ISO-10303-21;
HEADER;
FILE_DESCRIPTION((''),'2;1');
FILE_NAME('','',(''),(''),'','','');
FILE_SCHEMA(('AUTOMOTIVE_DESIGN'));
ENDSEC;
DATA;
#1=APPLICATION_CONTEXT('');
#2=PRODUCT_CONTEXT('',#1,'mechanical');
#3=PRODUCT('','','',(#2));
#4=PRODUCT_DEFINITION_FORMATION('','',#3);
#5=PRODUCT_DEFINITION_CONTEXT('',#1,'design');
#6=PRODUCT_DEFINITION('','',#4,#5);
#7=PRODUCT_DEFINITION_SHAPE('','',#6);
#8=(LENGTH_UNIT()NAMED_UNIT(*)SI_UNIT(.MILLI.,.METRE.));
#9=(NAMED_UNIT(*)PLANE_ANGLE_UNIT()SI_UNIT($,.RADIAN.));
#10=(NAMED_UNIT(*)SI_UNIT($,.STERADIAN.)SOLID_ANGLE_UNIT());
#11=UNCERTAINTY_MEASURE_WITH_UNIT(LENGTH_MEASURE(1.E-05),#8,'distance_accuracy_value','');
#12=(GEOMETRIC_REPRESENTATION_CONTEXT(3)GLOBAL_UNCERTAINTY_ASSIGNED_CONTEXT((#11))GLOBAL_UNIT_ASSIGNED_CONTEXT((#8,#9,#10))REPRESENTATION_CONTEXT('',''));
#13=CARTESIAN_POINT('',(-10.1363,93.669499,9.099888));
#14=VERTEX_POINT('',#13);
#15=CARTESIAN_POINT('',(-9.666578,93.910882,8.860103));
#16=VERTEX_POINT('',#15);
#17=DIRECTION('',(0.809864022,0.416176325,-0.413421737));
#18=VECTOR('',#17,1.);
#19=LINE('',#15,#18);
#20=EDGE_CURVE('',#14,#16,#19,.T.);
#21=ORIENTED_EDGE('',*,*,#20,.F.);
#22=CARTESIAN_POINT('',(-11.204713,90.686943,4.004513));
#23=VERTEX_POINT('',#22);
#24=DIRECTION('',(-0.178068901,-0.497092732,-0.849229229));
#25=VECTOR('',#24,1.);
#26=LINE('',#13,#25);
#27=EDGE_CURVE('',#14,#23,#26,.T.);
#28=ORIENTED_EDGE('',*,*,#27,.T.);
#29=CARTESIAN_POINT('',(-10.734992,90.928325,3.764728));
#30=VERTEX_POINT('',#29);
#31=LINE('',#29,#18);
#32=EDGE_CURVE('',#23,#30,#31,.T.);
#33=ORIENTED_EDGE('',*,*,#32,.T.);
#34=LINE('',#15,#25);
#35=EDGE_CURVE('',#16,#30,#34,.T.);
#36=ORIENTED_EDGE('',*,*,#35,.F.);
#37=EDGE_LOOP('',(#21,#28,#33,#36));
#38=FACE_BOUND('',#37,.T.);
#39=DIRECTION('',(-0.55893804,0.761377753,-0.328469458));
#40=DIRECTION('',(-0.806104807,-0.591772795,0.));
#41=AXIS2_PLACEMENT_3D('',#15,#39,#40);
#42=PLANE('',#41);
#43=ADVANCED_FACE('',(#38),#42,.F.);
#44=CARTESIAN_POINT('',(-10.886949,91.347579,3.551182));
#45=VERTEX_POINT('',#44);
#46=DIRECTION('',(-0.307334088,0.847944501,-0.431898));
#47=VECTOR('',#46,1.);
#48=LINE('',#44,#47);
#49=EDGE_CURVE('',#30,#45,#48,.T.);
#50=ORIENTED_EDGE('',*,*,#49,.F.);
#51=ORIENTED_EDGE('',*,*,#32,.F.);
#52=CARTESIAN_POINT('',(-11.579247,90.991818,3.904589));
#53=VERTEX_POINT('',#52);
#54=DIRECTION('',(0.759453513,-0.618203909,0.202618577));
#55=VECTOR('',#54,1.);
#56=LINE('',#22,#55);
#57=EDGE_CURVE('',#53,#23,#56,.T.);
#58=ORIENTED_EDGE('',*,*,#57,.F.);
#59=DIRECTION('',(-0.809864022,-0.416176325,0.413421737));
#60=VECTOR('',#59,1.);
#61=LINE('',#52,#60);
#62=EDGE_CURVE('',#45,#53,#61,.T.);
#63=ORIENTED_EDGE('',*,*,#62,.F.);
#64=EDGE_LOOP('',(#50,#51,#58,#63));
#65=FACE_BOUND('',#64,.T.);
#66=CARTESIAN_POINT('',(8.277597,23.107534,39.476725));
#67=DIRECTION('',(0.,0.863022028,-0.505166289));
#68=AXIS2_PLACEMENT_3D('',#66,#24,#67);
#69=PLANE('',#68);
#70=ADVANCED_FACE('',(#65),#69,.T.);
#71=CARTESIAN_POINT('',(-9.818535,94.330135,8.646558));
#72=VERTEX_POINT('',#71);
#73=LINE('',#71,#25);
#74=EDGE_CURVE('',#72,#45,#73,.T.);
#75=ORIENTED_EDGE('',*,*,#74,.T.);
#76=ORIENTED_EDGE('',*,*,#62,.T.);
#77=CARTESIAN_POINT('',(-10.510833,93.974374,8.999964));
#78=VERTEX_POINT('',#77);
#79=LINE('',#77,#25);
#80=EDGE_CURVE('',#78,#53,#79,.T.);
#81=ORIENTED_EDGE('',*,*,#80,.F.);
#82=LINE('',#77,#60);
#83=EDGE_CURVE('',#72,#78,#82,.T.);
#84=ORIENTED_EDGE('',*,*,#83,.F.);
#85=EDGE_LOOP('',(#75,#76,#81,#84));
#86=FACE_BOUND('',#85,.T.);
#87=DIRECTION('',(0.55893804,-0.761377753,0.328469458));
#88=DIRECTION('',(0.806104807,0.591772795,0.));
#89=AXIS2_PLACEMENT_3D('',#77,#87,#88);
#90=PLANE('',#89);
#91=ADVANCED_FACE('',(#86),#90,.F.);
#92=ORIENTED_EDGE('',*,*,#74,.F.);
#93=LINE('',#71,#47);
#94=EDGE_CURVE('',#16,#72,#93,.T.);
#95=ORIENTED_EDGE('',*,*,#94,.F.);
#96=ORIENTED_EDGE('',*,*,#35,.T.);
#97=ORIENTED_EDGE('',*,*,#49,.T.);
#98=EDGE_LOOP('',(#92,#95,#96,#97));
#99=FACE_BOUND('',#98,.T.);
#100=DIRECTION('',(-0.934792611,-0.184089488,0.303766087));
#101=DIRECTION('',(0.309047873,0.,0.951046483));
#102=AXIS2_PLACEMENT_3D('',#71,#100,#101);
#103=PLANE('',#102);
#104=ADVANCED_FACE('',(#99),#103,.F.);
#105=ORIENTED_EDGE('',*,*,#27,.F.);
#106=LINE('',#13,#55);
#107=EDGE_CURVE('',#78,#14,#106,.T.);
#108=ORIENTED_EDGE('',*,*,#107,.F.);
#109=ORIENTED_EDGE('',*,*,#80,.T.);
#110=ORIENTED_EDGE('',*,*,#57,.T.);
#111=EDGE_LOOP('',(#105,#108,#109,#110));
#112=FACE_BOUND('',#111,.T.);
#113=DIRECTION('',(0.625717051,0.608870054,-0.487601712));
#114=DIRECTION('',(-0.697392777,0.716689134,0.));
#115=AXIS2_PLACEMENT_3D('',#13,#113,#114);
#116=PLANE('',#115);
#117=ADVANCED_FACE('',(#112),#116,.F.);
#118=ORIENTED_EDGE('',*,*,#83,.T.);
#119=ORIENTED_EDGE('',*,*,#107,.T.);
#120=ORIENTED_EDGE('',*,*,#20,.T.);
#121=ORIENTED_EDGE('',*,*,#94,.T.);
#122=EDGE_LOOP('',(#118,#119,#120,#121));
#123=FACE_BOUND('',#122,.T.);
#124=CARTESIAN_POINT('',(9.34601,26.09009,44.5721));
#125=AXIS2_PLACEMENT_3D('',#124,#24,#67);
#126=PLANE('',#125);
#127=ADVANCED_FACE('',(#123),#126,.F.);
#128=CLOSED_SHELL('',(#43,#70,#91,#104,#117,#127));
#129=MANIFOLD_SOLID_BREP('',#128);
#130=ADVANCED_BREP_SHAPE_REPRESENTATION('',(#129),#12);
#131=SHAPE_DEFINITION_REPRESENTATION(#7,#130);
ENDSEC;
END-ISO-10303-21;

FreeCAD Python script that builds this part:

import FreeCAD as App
import Part
import Sketcher
from FreeCAD import Vector
Q = App.Units.Quantity

doc = App.newDocument("Part")
body = doc.addObject("PartDesign::Body", "Body")

# Sketch on an angled plane
sketch1 = body.newObject("Sketcher::SketchObject", "Sketch")
sketch1.Placement = App.Placement(Vector(8.277597, 23.107534, 39.476725), App.Rotation(Vector(0.984018021, -0.089954406, -0.153677384), Vector(0, 0.863022028, -0.505166289), Vector(0.178068901, 0.497092732, 0.849229229), "ZXY"))
sketch1.addGeometry(Part.LineSegment(Vector(-19.798733, 76.241885, 0), Vector(-19.321382, 76.571334, 0)), False)
sketch1.addGeometry(Part.LineSegment(Vector(-19.321382, 76.571334, 0), Vector(-19.475807, 77.041035, 0)), False)
sketch1.addGeometry(Part.LineSegment(Vector(-19.475807, 77.041035, 0), Vector(-20.179349, 76.555476, 0)), False)
sketch1.addGeometry(Part.LineSegment(Vector(-20.179349, 76.555476, 0), Vector(-19.798733, 76.241885, 0)), False)
sketch1.addConstraint(Sketcher.Constraint("Coincident", 0, 2, 1, 1))
sketch1.addConstraint(Sketcher.Constraint("Coincident", 1, 2, 2, 1))
sketch1.addConstraint(Sketcher.Constraint("Coincident", 2, 2, 3, 1))
sketch1.addConstraint(Sketcher.Constraint("Coincident", 3, 2, 0, 1))
sketch1.addConstraint(Sketcher.Constraint("Parallel", 0, 2))
sketch1.addConstraint(Sketcher.Constraint("Distance", 0, Q("0.58 mm")))
sketch1.addConstraint(Sketcher.Constraint("DistanceY", 0, 2, 1, 2, Q("0.469701 mm")))
sketch1.addConstraint(Sketcher.Constraint("Distance", 3, Q("0.493162 mm")))
sketch1.addConstraint(Sketcher.Constraint("DistanceX", 2, 2, -1, 1, Q("20.179349 mm")))
sketch1.addConstraint(Sketcher.Constraint("DistanceX", 2, 2, 1, 2, Q("0.703542 mm")))
sketch1.addConstraint(Sketcher.Constraint("DistanceY", 2, 2, 1, 2, Q("0.485559 mm")))
sketch1.addConstraint(Sketcher.Constraint("DistanceY", -1, 1, 0, 2, Q("76.571334 mm")))
pad1 = body.newObject("PartDesign::Pad", "Pad")
pad1.Profile = sketch1
pad1.Length = 6

doc.recompute()
